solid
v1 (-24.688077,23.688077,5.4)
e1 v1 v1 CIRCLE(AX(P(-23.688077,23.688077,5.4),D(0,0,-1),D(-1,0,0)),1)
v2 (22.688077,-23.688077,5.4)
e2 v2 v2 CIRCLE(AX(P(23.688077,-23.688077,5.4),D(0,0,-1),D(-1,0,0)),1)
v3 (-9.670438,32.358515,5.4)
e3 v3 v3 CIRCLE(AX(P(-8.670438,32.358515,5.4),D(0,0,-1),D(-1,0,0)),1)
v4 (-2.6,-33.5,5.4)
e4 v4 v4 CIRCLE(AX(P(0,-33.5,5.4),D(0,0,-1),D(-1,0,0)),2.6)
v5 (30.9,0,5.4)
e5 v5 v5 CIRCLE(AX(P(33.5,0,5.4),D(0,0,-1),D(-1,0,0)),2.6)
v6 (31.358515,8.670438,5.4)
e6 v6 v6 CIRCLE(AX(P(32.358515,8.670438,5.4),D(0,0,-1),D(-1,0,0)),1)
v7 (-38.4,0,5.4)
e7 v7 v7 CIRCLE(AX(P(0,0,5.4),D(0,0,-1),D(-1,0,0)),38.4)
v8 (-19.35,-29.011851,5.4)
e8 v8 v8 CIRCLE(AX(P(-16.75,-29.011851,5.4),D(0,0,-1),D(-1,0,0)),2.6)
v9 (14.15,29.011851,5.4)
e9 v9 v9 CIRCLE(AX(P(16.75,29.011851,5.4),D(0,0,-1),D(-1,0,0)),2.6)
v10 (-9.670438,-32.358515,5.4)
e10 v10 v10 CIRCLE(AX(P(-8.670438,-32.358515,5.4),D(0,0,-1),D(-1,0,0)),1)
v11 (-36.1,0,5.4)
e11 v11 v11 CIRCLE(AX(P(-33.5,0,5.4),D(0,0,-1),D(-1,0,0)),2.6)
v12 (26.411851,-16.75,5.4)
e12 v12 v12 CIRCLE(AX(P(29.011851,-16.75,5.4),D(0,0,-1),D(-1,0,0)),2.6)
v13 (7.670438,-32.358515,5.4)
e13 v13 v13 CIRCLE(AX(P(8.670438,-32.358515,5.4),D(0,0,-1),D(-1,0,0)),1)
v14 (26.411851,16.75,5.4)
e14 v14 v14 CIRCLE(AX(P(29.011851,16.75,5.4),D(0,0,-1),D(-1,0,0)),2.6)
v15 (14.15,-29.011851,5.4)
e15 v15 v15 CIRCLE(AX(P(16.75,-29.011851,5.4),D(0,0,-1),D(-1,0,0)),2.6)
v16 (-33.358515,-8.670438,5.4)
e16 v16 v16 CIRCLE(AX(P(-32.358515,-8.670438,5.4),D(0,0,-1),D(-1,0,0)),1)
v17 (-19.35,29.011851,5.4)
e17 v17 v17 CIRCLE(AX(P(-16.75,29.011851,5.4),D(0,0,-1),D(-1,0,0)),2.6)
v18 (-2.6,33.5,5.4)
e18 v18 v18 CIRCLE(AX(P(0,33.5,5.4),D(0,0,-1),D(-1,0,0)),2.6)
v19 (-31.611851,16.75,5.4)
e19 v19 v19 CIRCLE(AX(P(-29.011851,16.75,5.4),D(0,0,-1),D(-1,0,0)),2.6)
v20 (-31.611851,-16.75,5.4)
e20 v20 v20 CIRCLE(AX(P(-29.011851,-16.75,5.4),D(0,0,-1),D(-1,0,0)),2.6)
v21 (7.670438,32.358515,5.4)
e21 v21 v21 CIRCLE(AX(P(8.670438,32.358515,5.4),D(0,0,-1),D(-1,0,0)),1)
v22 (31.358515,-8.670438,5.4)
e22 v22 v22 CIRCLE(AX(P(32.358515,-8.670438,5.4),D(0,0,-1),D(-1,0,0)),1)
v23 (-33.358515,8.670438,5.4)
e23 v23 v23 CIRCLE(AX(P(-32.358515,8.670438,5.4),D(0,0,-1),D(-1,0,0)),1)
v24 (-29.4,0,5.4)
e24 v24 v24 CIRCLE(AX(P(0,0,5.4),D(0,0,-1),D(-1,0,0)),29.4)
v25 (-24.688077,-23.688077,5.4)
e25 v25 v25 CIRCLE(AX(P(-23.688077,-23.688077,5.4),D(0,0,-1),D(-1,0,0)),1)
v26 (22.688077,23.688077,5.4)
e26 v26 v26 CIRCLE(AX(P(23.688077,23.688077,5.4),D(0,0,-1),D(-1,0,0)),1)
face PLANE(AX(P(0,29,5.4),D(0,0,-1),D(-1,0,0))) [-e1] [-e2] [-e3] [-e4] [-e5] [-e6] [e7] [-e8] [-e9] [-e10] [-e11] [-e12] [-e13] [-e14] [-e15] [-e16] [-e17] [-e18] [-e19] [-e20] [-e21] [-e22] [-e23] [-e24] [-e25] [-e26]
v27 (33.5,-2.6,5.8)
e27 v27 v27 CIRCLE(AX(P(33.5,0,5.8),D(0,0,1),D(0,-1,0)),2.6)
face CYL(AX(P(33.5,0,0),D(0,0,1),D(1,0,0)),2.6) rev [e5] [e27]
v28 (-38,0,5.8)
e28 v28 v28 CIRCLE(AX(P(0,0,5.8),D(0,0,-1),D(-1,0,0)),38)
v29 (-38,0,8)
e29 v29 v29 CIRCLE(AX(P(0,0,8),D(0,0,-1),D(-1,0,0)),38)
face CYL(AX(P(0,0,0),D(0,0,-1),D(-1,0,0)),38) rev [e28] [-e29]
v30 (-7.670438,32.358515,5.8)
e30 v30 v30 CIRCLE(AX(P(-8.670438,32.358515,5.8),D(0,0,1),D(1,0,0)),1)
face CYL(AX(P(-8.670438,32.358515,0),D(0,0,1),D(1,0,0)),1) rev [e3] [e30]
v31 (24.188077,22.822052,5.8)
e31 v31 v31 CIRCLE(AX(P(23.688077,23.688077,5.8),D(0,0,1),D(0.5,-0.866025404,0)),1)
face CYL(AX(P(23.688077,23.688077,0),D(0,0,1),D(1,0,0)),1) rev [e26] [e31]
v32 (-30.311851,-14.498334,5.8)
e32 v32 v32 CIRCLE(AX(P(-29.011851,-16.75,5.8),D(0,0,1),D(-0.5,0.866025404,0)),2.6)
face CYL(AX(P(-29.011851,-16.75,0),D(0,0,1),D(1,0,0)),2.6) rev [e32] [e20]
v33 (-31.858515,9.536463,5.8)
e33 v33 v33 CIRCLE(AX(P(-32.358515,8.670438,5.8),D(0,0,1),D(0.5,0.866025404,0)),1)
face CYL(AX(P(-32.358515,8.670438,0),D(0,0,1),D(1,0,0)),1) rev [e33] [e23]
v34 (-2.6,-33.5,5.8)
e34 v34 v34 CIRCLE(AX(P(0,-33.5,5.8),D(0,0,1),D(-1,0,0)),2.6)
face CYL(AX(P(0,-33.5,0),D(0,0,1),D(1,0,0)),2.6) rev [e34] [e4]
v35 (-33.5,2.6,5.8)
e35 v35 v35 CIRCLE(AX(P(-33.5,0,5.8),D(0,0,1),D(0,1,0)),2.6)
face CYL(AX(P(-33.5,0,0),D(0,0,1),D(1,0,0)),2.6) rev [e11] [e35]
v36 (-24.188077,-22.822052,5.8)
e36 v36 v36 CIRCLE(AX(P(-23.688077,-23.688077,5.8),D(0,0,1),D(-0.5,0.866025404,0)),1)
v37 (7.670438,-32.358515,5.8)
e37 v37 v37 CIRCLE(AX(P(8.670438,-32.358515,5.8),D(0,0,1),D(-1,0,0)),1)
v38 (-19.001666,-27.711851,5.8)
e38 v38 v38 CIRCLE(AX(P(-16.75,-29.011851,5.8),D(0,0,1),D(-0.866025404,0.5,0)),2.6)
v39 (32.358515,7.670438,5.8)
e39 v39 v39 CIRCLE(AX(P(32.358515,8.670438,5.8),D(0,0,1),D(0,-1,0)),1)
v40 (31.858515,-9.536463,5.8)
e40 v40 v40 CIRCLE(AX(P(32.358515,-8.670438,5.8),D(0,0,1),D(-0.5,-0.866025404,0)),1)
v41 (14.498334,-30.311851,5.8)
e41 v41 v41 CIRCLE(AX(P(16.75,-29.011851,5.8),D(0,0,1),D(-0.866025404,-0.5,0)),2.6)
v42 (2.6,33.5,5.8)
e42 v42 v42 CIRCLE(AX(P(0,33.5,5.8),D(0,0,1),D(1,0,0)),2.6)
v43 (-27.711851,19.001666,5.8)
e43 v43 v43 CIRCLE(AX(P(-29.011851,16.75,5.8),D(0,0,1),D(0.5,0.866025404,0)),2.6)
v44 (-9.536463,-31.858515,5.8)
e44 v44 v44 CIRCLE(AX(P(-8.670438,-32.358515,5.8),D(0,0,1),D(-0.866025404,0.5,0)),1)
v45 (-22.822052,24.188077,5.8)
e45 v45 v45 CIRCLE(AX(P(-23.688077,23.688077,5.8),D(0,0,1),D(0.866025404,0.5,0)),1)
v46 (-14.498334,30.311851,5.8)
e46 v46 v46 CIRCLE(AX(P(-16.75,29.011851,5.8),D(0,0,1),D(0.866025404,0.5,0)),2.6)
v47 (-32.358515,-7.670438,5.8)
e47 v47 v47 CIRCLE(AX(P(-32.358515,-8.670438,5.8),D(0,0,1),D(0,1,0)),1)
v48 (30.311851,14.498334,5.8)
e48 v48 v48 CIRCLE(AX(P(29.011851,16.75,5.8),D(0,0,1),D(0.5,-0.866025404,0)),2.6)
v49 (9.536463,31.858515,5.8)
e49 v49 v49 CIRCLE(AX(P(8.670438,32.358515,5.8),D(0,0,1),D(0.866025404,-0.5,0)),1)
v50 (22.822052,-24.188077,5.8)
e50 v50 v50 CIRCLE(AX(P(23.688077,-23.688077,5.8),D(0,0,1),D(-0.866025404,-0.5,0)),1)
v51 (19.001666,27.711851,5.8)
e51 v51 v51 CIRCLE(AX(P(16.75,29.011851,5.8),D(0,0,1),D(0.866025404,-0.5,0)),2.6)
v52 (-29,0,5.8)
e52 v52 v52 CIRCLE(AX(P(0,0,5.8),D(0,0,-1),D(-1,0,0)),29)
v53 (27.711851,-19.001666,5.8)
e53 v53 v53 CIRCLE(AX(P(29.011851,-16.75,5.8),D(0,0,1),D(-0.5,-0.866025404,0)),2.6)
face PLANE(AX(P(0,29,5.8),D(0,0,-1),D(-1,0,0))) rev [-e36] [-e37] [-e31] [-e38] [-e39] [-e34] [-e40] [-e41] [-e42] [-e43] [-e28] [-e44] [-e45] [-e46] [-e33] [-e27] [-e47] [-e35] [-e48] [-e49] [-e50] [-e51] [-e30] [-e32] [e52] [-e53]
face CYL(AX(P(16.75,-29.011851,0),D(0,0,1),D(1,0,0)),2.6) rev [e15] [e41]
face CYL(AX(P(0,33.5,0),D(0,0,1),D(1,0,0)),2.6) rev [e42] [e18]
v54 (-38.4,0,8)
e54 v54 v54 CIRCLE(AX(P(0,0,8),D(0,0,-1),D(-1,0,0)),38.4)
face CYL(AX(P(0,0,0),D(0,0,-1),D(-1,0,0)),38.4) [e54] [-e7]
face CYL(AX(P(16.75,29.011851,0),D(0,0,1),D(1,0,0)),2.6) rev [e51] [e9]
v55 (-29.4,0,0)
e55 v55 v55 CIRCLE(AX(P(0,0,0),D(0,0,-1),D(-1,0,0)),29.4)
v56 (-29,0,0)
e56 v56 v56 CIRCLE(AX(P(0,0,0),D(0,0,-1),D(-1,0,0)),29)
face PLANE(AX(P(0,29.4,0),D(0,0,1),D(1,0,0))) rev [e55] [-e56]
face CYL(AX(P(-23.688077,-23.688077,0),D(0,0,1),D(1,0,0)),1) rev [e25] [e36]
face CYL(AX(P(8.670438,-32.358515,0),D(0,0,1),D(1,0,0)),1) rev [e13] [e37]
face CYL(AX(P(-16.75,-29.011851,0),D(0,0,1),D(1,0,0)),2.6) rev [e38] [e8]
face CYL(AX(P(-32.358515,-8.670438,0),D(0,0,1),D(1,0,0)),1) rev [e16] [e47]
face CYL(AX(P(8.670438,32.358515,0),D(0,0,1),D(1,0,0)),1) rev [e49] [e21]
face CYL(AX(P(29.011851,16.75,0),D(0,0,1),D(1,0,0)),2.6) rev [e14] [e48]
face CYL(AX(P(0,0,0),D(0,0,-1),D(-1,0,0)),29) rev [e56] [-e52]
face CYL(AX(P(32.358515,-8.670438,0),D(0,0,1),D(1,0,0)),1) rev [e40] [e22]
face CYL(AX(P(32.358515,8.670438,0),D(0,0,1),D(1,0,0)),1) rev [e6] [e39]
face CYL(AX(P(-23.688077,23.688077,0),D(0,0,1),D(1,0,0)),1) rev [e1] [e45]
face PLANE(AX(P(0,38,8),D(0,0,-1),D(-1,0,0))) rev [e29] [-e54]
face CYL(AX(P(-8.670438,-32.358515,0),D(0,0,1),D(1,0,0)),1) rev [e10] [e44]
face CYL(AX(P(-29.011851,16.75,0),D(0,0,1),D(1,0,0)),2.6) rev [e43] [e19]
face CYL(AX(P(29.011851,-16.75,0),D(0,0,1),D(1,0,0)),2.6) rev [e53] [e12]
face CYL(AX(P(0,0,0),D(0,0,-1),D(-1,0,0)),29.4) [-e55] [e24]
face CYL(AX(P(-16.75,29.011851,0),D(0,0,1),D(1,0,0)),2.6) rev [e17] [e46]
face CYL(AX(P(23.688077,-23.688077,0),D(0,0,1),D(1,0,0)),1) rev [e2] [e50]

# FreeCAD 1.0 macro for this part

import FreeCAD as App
import Part
import Sketcher
Q = App.Units.Quantity


def add_polygon(sketch, points):
    """Adds a closed chain of lines whose ends are joined by coincident constraints."""
    first, n = sketch.GeometryCount, len(points)
    for a, b in zip(points, points[1:] + points[:1]):
        sketch.addGeometry(Part.LineSegment(App.Vector(*a, 0), App.Vector(*b, 0)), False)
    for i in range(n):
        sketch.addConstraint(Sketcher.Constraint("Coincident", first + i, 2, first + (i + 1) % n, 1))

doc = App.newDocument("Part")
body = doc.addObject("PartDesign::Body", "Body")

# Sketch on YZ plane
sketch1 = body.newObject("Sketcher::SketchObject", "Sketch")
sketch1.AttachmentSupport = (doc.getObject("YZ_Plane"), [""])
sketch1.MapMode = "FlatFace"
add_polygon(sketch1, [(29, 5.8), (29, 0), (29.4, 0), (29.4, 5.4), (38.4, 5.4), (38.4, 8), (38, 8), (38, 5.8)])  # lines 0-7
sketch1.addConstraint([
    Sketcher.Constraint("Vertical", 0),
    Sketcher.Constraint("Horizontal", 1),
    Sketcher.Constraint("Vertical", 2),
    Sketcher.Constraint("Horizontal", 3),
    Sketcher.Constraint("Vertical", 4),
    Sketcher.Constraint("Horizontal", 5),
    Sketcher.Constraint("Vertical", 6),
    Sketcher.Constraint("Horizontal", 7),
    Sketcher.Constraint("PointOnObject", 0, 2, -1),
    Sketcher.Constraint("Equal", 1, 5),
    Sketcher.Constraint("DistanceX", 3, 1, 3, 2, Q("9 mm")),
    Sketcher.Constraint("DistanceX", 1, 1, 1, 2, Q("0.4 mm")),
    Sketcher.Constraint("DistanceY", 0, 2, 0, 1, Q("5.8 mm")),
    Sketcher.Constraint("DistanceY", 2, 1, 2, 2, Q("5.4 mm")),
    Sketcher.Constraint("DistanceY", 4, 1, 4, 2, Q("2.6 mm")),
    Sketcher.Constraint("DistanceX", -1, 1, 0, 2, Q("29 mm")),
])
revolution = body.newObject("PartDesign::Revolution", "Revolution")
revolution.Profile = sketch1
revolution.ReferenceAxis = (sketch1, ["V_Axis"])
revolution.Angle = 360

# Sketch on XY plane
sketch2 = body.newObject("Sketcher::SketchObject", "Sketch001")
sketch2.AttachmentSupport = (doc.getObject("XY_Plane"), [""])
sketch2.MapMode = "FlatFace"
sketch2.AttachmentOffset = App.Placement(App.Vector(0, 0, 5.8), App.Rotation())
sketch2.addGeometry([
    Part.Circle(App.Vector(0, 33.5, 0), App.Vector(0, 0, 1), 2.6),
    Part.Circle(App.Vector(-8.670438, 32.358515, 0), App.Vector(0, 0, 1), 1),
], False)
sketch2.addConstraint([
    Sketcher.Constraint("PointOnObject", 0, 3, -2),
    Sketcher.Constraint("Diameter", 1, Q("2 mm")),
    Sketcher.Constraint("Diameter", 0, Q("5.2 mm")),
    Sketcher.Constraint("DistanceY", -1, 1, 0, 3, Q("33.5 mm")),
    Sketcher.Constraint("DistanceX", 1, 3, -1, 1, Q("8.670438 mm")),
    Sketcher.Constraint("DistanceY", -1, 1, 1, 3, Q("32.358515 mm")),
])
pocket1 = body.newObject("PartDesign::Pocket", "Pocket")
pocket1.Profile = sketch2
pocket1.Type = "ThroughAll"
doc.recompute()

polarpattern = body.newObject("PartDesign::PolarPattern", "PolarPattern")
polarpattern.Originals = [pocket1]
polarpattern.Axis = (doc.getObject("Z_Axis"), [""])
polarpattern.Angle = 360
polarpattern.Occurrences = 12
body.Tip = polarpattern

doc.recompute()
